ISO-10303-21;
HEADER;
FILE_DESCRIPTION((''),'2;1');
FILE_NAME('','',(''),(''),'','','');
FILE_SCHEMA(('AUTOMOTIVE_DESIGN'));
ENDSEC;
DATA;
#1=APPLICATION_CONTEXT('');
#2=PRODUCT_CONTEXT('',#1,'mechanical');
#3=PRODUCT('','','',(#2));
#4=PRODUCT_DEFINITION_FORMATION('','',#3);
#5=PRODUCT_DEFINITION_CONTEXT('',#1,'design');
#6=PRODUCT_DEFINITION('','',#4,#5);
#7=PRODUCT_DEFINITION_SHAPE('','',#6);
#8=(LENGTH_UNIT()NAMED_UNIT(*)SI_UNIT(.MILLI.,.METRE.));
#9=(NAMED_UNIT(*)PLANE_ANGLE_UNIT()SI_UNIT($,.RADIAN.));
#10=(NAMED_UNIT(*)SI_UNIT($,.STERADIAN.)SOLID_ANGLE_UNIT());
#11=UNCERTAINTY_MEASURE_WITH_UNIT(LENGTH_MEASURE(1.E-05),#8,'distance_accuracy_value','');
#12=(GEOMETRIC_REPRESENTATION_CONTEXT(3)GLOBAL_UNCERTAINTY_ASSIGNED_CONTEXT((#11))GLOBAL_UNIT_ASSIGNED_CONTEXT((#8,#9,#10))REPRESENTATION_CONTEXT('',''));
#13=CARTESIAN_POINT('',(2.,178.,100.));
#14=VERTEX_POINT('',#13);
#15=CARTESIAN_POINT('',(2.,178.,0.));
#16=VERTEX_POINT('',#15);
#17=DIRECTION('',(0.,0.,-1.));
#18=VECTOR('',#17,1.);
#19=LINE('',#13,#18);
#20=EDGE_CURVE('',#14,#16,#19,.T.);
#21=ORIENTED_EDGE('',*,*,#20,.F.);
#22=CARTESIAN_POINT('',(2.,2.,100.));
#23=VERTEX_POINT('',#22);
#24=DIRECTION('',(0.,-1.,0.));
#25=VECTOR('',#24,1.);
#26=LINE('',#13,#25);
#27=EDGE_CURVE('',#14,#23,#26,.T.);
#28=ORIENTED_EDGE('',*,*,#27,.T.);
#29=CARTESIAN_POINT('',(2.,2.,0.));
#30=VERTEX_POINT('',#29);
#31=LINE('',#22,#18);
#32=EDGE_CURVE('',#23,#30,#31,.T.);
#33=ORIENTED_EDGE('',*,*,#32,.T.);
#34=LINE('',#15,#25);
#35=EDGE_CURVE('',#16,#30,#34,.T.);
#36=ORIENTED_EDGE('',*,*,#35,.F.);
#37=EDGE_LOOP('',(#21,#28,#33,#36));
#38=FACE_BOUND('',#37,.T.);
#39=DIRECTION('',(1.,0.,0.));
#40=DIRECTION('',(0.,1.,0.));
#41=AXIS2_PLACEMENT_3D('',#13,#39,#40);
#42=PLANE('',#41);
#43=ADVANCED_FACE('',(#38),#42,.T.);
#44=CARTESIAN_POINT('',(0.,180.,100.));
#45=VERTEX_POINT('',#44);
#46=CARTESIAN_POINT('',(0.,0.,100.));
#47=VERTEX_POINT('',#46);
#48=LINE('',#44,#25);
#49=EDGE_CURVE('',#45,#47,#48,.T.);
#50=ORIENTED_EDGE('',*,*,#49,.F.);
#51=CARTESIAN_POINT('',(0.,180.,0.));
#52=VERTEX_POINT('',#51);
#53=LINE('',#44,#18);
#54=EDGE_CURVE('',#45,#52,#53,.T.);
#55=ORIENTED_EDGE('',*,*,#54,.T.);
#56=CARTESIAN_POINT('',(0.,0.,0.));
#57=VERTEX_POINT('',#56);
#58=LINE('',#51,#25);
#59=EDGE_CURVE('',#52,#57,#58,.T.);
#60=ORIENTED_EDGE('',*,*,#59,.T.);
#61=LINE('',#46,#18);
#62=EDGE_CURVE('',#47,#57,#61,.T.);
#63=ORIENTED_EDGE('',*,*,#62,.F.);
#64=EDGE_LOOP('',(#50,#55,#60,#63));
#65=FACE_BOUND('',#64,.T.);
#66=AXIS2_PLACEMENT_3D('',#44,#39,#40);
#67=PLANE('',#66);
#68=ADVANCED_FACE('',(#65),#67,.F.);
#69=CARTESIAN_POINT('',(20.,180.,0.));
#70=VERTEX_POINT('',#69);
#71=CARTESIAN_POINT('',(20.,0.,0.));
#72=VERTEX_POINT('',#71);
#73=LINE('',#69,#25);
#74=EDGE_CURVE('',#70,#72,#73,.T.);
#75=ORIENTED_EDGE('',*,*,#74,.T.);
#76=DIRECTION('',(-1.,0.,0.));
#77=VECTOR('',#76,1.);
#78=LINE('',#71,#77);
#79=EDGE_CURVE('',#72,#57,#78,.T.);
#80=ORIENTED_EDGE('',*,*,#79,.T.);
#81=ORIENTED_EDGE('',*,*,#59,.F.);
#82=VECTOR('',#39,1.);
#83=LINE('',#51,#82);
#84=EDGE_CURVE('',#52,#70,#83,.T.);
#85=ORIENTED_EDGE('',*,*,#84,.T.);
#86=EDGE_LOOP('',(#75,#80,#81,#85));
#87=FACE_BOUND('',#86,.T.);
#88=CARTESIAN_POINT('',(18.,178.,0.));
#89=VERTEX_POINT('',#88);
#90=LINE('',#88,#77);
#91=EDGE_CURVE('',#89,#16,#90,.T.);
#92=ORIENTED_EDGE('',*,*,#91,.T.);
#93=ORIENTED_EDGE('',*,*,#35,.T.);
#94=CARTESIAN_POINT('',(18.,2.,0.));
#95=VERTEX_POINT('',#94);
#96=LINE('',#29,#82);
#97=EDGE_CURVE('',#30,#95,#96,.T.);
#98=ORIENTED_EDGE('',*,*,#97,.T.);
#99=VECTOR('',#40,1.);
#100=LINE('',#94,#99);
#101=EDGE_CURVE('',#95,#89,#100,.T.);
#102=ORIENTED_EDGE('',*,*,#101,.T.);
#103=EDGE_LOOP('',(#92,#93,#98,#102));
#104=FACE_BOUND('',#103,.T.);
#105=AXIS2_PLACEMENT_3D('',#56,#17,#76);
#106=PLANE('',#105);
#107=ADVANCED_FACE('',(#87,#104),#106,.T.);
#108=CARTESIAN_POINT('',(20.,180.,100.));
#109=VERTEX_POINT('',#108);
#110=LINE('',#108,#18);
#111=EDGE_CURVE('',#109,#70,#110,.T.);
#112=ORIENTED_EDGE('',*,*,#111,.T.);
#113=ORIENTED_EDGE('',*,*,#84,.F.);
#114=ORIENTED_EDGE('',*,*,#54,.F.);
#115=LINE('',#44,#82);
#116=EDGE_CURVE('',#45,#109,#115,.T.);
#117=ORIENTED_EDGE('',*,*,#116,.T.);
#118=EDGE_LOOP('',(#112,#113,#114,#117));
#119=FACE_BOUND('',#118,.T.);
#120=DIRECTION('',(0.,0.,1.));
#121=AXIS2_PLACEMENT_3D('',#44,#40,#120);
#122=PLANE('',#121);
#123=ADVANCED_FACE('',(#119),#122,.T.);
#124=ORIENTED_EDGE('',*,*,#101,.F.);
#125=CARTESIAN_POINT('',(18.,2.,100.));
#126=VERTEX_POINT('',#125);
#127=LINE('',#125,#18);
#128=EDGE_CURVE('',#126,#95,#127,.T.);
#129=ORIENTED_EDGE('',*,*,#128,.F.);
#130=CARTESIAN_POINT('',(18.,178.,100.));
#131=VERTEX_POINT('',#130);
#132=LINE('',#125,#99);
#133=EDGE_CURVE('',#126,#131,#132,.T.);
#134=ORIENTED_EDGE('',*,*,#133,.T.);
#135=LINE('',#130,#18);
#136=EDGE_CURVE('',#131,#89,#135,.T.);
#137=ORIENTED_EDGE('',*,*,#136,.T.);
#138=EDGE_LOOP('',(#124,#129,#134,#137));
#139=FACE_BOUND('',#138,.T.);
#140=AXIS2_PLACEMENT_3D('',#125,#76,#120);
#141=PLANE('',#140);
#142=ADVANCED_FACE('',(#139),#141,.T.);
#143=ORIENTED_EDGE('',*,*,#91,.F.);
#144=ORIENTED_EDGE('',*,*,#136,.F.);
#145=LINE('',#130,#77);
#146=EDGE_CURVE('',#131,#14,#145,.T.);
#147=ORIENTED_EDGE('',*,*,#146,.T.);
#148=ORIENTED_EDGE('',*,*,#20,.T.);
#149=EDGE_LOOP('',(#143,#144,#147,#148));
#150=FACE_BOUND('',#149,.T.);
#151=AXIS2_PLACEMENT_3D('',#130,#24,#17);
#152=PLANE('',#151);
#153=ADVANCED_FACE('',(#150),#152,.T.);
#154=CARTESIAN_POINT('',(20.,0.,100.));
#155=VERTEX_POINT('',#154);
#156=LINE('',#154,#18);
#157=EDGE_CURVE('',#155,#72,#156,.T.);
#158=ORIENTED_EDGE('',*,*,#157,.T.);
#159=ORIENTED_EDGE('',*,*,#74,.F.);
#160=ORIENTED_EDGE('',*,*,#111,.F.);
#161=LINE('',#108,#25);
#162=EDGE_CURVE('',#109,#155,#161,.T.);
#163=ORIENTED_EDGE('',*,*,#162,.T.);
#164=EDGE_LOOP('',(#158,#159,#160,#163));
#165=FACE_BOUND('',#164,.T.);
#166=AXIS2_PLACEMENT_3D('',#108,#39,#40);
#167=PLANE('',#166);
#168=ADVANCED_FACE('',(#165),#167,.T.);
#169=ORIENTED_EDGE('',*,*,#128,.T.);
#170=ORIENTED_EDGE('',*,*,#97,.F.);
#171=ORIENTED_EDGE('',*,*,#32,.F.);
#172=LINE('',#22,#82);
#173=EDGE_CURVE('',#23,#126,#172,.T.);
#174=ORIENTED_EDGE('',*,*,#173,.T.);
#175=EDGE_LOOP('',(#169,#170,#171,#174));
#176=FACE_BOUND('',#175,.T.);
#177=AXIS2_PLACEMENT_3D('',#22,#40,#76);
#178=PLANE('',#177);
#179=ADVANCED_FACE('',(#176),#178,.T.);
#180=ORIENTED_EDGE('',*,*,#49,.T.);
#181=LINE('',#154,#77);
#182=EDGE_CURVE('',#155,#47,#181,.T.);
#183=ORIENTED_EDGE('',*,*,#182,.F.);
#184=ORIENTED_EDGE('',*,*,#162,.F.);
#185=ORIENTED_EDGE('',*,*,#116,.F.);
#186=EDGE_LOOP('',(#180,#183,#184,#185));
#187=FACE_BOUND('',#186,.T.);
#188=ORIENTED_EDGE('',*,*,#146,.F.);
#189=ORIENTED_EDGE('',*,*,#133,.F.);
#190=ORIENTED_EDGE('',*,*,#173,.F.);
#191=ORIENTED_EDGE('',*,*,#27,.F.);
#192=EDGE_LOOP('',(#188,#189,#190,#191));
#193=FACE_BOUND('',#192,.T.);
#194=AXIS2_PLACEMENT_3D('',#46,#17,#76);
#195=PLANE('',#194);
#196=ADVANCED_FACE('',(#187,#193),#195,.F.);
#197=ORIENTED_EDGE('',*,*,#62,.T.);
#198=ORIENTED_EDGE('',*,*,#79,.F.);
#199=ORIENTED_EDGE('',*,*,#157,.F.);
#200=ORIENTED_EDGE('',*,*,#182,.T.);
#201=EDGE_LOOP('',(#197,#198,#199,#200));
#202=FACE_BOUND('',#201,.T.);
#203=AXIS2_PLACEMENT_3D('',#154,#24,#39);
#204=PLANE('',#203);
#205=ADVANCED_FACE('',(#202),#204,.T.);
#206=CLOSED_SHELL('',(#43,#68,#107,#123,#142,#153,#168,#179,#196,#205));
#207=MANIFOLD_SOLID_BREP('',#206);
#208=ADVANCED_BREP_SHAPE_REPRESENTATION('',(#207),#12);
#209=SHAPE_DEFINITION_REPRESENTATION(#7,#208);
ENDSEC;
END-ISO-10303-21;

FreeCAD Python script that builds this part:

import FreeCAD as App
import Part
import Sketcher
from FreeCAD import Vector


def add_polygon(sketch, points):
    """Adds a closed chain of lines whose ends are joined by coincident constraints."""
    first, n = sketch.GeometryCount, len(points)
    for a, b in zip(points, points[1:] + points[:1]):
        sketch.addGeometry(Part.LineSegment(App.Vector(*a, 0), App.Vector(*b, 0)), False)
    for i in range(n):
        sketch.addConstraint(Sketcher.Constraint("Coincident", first + i, 2, first + (i + 1) % n, 1))

doc = App.newDocument("Part")
body = doc.addObject("PartDesign::Body", "Body")

# Sketch on XY plane
sketch1 = body.newObject("Sketcher::SketchObject", "Sketch")
sketch1.AttachmentSupport = (doc.getObject("XY_Plane"), [""])
sketch1.MapMode = "FlatFace"
add_polygon(sketch1, [(0, 180), (0, 0), (20, 0), (20, 180)])  # lines 0-3
add_polygon(sketch1, [(18, 2), (2, 2), (2, 178), (18, 178)])  # lines 4-7
sketch1.addConstraint(Sketcher.Constraint("Vertical", 0))
sketch1.addConstraint(Sketcher.Constraint("Horizontal", 1))
sketch1.addConstraint(Sketcher.Constraint("Vertical", 2))
sketch1.addConstraint(Sketcher.Constraint("Horizontal", 3))
sketch1.addConstraint(Sketcher.Constraint("Horizontal", 4))
sketch1.addConstraint(Sketcher.Constraint("Vertical", 5))
sketch1.addConstraint(Sketcher.Constraint("Horizontal", 6))
sketch1.addConstraint(Sketcher.Constraint("Vertical", 7))
sketch1.addConstraint(Sketcher.Constraint("Coincident", 0, 2, -1, 1))
sketch1.addConstraint(Sketcher.Constraint("DistanceX", 1, 1, 1, 2, 20.0))
sketch1.addConstraint(Sketcher.Constraint("DistanceX", 4, 2, 4, 1, 16.0))
sketch1.addConstraint(Sketcher.Constraint("DistanceY", 0, 2, 0, 1, 180.0))
sketch1.addConstraint(Sketcher.Constraint("DistanceY", 5, 1, 5, 2, 176.0))
sketch1.addConstraint(Sketcher.Constraint("DistanceX", -1, 1, 4, 2, 2.0))
sketch1.addConstraint(Sketcher.Constraint("DistanceY", -1, 1, 4, 2, 2.0))
pad1 = body.newObject("PartDesign::Pad", "Pad")
pad1.Profile = sketch1
pad1.Length = 100

doc.recompute()
